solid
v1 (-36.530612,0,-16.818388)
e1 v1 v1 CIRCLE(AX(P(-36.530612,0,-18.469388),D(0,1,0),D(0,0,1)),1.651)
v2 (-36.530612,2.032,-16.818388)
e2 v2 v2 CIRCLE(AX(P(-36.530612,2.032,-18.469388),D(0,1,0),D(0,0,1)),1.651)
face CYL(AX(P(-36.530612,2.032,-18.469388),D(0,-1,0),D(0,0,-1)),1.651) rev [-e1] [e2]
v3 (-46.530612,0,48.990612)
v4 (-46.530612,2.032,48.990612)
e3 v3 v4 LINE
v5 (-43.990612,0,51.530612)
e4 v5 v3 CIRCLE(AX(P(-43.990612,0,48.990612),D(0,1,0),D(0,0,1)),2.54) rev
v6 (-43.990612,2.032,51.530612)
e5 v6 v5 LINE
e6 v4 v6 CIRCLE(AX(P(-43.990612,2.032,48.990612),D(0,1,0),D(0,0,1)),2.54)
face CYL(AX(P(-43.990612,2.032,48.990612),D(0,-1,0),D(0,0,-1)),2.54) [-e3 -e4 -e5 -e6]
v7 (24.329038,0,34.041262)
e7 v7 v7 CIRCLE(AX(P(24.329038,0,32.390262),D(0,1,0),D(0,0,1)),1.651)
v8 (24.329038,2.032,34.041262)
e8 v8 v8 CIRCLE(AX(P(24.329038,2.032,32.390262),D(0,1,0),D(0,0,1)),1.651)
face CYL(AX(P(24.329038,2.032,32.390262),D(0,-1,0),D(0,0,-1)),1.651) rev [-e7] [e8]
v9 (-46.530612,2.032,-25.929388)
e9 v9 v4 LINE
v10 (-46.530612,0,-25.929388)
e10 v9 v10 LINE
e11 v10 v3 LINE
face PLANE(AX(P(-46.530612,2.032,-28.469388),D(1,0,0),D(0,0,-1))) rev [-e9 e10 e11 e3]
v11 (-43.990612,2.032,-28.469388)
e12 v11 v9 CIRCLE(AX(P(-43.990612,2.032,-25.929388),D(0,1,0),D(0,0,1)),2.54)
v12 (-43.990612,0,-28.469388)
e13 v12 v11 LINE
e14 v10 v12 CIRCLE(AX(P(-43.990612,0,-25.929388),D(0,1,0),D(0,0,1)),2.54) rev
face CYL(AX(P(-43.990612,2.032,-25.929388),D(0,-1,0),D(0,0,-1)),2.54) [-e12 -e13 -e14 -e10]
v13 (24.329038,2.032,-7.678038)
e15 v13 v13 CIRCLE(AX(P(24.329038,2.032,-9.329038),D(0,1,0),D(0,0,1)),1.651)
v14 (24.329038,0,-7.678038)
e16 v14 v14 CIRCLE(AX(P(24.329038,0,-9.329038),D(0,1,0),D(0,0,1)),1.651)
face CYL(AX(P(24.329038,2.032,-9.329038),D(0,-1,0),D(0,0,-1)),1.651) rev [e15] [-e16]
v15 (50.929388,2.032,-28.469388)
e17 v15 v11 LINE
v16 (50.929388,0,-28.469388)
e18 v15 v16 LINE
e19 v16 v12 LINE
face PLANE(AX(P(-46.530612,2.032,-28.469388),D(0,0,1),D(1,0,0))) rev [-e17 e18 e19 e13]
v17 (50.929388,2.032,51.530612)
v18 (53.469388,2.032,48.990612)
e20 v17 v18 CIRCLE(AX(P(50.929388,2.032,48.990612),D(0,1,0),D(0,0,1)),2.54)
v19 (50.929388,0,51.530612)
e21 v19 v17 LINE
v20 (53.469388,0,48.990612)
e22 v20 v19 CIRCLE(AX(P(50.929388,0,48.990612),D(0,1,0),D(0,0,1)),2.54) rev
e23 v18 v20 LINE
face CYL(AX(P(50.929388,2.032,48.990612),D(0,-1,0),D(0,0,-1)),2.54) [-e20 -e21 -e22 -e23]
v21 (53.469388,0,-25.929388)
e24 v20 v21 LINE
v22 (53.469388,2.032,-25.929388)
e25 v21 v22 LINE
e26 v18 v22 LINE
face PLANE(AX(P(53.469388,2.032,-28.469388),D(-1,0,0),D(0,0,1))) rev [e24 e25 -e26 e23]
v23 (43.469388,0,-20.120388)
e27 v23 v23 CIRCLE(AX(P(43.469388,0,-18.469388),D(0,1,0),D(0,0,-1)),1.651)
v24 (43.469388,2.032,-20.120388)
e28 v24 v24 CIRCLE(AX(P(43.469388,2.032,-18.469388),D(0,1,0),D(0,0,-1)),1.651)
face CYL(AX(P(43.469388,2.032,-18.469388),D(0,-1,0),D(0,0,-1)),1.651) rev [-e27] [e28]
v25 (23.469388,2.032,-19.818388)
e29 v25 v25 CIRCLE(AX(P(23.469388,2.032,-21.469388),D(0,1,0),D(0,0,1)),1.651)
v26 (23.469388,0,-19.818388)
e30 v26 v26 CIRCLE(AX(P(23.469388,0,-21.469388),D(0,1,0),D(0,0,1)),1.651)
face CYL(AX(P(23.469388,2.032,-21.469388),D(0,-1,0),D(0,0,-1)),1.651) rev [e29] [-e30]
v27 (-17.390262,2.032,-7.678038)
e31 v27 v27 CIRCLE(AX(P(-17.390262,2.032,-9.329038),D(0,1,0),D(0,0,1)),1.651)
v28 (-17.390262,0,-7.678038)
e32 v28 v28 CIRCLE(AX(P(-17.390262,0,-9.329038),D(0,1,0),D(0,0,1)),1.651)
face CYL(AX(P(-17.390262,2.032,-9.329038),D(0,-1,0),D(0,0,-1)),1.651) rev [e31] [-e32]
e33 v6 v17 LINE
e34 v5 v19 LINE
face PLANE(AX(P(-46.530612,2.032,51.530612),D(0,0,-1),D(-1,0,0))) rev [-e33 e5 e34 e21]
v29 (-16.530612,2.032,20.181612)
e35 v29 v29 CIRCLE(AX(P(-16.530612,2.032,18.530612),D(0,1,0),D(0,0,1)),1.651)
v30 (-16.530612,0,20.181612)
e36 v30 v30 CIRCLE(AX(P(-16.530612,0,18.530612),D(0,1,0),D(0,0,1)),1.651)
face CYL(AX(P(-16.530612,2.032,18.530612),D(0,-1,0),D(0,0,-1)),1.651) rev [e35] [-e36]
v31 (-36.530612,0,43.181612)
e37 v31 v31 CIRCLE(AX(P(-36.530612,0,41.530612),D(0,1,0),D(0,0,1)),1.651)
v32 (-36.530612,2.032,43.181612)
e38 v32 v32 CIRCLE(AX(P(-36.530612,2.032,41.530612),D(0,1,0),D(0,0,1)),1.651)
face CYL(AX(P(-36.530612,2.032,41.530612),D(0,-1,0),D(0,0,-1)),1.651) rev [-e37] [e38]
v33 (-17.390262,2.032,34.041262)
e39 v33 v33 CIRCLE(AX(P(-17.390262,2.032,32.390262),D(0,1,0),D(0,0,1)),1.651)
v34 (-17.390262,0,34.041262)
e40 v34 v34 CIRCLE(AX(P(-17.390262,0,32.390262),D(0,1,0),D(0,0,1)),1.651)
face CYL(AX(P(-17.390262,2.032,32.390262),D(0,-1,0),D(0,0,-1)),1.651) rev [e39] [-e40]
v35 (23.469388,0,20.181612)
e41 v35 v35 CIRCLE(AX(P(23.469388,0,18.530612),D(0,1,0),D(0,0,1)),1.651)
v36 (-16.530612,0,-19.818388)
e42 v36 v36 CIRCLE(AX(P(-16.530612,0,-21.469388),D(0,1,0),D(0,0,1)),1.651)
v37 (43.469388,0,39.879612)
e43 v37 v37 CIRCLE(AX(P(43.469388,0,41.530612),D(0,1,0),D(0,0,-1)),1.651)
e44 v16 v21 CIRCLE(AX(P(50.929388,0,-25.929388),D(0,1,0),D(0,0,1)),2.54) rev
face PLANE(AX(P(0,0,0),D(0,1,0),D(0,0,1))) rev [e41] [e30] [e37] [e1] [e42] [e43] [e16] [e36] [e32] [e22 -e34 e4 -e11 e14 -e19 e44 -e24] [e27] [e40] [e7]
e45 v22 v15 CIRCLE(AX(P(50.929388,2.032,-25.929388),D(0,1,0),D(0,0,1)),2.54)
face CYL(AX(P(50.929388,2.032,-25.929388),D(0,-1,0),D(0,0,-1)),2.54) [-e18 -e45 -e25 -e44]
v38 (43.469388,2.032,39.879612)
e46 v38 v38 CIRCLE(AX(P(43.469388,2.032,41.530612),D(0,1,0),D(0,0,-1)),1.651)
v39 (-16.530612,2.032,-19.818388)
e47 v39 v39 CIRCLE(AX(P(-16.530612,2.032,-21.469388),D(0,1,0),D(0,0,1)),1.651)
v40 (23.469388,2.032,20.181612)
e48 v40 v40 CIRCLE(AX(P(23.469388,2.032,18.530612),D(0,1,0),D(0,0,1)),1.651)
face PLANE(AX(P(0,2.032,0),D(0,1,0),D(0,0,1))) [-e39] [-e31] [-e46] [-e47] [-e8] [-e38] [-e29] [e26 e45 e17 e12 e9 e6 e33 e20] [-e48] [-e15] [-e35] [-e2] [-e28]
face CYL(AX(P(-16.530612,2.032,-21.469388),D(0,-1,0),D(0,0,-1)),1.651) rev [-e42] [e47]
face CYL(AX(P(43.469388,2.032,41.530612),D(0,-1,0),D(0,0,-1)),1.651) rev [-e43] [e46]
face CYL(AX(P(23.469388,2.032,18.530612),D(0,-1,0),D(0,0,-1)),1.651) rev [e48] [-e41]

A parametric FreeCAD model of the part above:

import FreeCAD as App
import Part
import Sketcher
from FreeCAD import Vector
Q = App.Units.Quantity


def edges_at(feature, points):
    """Names of the edges that pass closest to the given points."""
    edges = feature.Shape.Edges
    near = lambda p: min(range(len(edges)), key=lambda i: edges[i].distToShape(Part.Vertex(*p))[0])
    return sorted({f"Edge{near(p) + 1}" for p in points})

doc = App.newDocument("Part")
params = doc.addObject("Spreadsheet::Sheet", "Params")
for row, (alias, value) in enumerate([
    ("sketch1_diameter", "0.13 in"),
    ("pad1_length", "0.08 in"),
    ("fillet_radius", "0.1 in"),
    ("fillet2_radius", "0.1 in"),
], start=1):
    params.set(f"A{row}", alias)
    params.set(f"B{row}", "=" + value)
    params.setAlias(f"B{row}", alias)

body = doc.addObject("PartDesign::Body", "Body")

# Sketch on XZ plane
sketch1 = body.newObject("Sketcher::SketchObject", "Sketch")
sketch1.AttachmentSupport = (doc.getObject("XZ_Plane"), [""])
sketch1.MapMode = "FlatFace"
sketch1.addGeometry(Part.LineSegment(Vector(-46.5, -28.5, 0), Vector(-46.5, 51.5, 0)), False)
sketch1.addGeometry(Part.LineSegment(Vector(-46.5, 51.5, 0), Vector(53.5, 51.5, 0)), False)
sketch1.addGeometry(Part.LineSegment(Vector(53.5, 51.5, 0), Vector(53.5, -28.5, 0)), False)
sketch1.addGeometry(Part.LineSegment(Vector(53.5, -28.5, 0), Vector(-46.5, -28.5, 0)), False)
sketch1.addGeometry(Part.Circle(Vector(-36.5, 41.5, 0), Vector(0, 0, 1), 1.7), False)
sketch1.addGeometry(Part.Circle(Vector(-17.4, 32.4, 0), Vector(0, 0, 1), 1.7), False)
sketch1.addGeometry(Part.Circle(Vector(-16.5, 18.5, 0), Vector(0, 0, 1), 1.7), False)
sketch1.addGeometry(Part.Circle(Vector(43.5, 41.5, 0), Vector(0, 0, 1), 1.7), False)
sketch1.addGeometry(Part.Circle(Vector(24.3, 32.4, 0), Vector(0, 0, 1), 1.7), False)
sketch1.addGeometry(Part.Circle(Vector(23.5, 18.5, 0), Vector(0, 0, 1), 1.7), False)
sketch1.addGeometry(Part.Circle(Vector(-17.4, -9.3, 0), Vector(0, 0, 1), 1.7), False)
sketch1.addGeometry(Part.Circle(Vector(-36.5, -18.5, 0), Vector(0, 0, 1), 1.7), False)
sketch1.addGeometry(Part.Circle(Vector(-16.5, -21.5, 0), Vector(0, 0, 1), 1.7), False)
sketch1.addGeometry(Part.Circle(Vector(23.5, -21.5, 0), Vector(0, 0, 1), 1.7), False)
sketch1.addGeometry(Part.Circle(Vector(24.3, -9.3, 0), Vector(0, 0, 1), 1.7), False)
sketch1.addGeometry(Part.Circle(Vector(43.5, -18.5, 0), Vector(0, 0, 1), 1.7), False)
sketch1.addConstraint(Sketcher.Constraint("Coincident", 0, 2, 1, 1))
sketch1.addConstraint(Sketcher.Constraint("Coincident", 1, 2, 2, 1))
sketch1.addConstraint(Sketcher.Constraint("Coincident", 2, 2, 3, 1))
sketch1.addConstraint(Sketcher.Constraint("Coincident", 3, 2, 0, 1))
sketch1.addConstraint(Sketcher.Constraint("Vertical", 0))
sketch1.addConstraint(Sketcher.Constraint("Horizontal", 1))
sketch1.addConstraint(Sketcher.Constraint("Vertical", 2))
sketch1.addConstraint(Sketcher.Constraint("Horizontal", 3))
sketch1.addConstraint(Sketcher.Constraint("Equal", 4, 5))
sketch1.addConstraint(Sketcher.Constraint("Equal", 5, 6))
sketch1.addConstraint(Sketcher.Constraint("Equal", 6, 7))
sketch1.addConstraint(Sketcher.Constraint("Equal", 7, 8))
sketch1.addConstraint(Sketcher.Constraint("Equal", 8, 9))
sketch1.addConstraint(Sketcher.Constraint("Equal", 9, 10))
sketch1.addConstraint(Sketcher.Constraint("Equal", 10, 11))
sketch1.addConstraint(Sketcher.Constraint("Equal", 11, 12))
sketch1.addConstraint(Sketcher.Constraint("Equal", 12, 13))
sketch1.addConstraint(Sketcher.Constraint("Equal", 13, 14))
sketch1.addConstraint(Sketcher.Constraint("Equal", 14, 15))
sketch1.addConstraint(Sketcher.Constraint("Horizontal", 4, 3, 7, 3))
sketch1.addConstraint(Sketcher.Constraint("Horizontal", 5, 3, 8, 3))
sketch1.addConstraint(Sketcher.Constraint("Horizontal", 6, 3, 9, 3))
sketch1.addConstraint(Sketcher.Constraint("Horizontal", 12, 3, 13, 3))
sketch1.addConstraint(Sketcher.Constraint("Horizontal", 10, 3, 14, 3))
sketch1.addConstraint(Sketcher.Constraint("Horizontal", 11, 3, 15, 3))
sketch1.addConstraint(Sketcher.Constraint("Vertical", 5, 3, 10, 3))
sketch1.addConstraint(Sketcher.Constraint("Vertical", 4, 3, 11, 3))
sketch1.addConstraint(Sketcher.Constraint("Vertical", 6, 3, 12, 3))
sketch1.addConstraint(Sketcher.Constraint("Vertical", 9, 3, 13, 3))
sketch1.addConstraint(Sketcher.Constraint("Vertical", 8, 3, 14, 3))
sketch1.addConstraint(Sketcher.Constraint("Vertical", 7, 3, 15, 3))
sketch1.addConstraint(Sketcher.Constraint("Diameter", 4, Q("0.13 in")))
sketch1.addConstraint(Sketcher.Constraint("DistanceX", 1, 1, 1, 2, Q("100 mm")))
sketch1.addConstraint(Sketcher.Constraint("DistanceY", 0, 1, 0, 2, Q("80 mm")))
sketch1.addConstraint(Sketcher.Constraint("DistanceX", 4, 3, 6, 3, Q("20 mm")))
sketch1.addConstraint(Sketcher.Constraint("DistanceY", 6, 3, 4, 3, Q("23 mm")))
sketch1.addConstraint(Sketcher.Constraint("DistanceX", 6, 3, 7, 3, Q("60 mm")))
sketch1.addConstraint(Sketcher.Constraint("DistanceX", 5, 3, 8, 3, Q("41.7193 mm")))
sketch1.addConstraint(Sketcher.Constraint("DistanceX", 9, 3, 7, 3, Q("20 mm")))
sketch1.addConstraint(Sketcher.Constraint("DistanceY", 10, 3, 5, 3, Q("41.7193 mm")))
sketch1.addConstraint(Sketcher.Constraint("DistanceY", 11, 3, 6, 3, Q("37 mm")))
sketch1.addConstraint(Sketcher.Constraint("DistanceY", 12, 3, 11, 3, Q("3 mm")))
sketch1.addConstraint(Sketcher.Constraint("DistanceX", 0, 2, 4, 3, Q("10 mm")))
sketch1.addConstraint(Sketcher.Constraint("DistanceY", 4, 3, 0, 2, Q("10 mm")))
sketch1.addConstraint(Sketcher.Constraint("DistanceX", 4, 3, 5, 3, Q("19.14035 mm")))
sketch1.addConstraint(Sketcher.Constraint("DistanceY", 5, 3, 4, 3, Q("9.14035 mm")))
sketch1.addConstraint(Sketcher.Constraint("DistanceX", 4, 3, -1, 1, Q("36.530612 mm")))
sketch1.addConstraint(Sketcher.Constraint("DistanceY", -1, 1, 4, 3, Q("41.530612 mm")))
sketch1.setExpression("Constraints[31]", "Params.sketch1_diameter")
pad1 = body.newObject("PartDesign::Pad", "Pad")
pad1.Profile = sketch1
pad1.setExpression("Length", "Params.pad1_length")
pad1.Reversed = True
doc.recompute()

fillet = body.newObject("PartDesign::Fillet", "Fillet")
fillet.Base = (pad1, edges_at(pad1, [(-46.531, 1.016, 51.531)]))
fillet.setExpression("Radius", "Params.fillet_radius")
doc.recompute()

fillet2 = body.newObject("PartDesign::Fillet", "Fillet001")
fillet2.Base = (fillet, edges_at(fillet, [(-46.531, 1.016, -28.469), (53.469, 1.016, -28.469), (53.469, 1.016, 51.531)]))
fillet2.setExpression("Radius", "Params.fillet2_radius")

doc.recompute()
